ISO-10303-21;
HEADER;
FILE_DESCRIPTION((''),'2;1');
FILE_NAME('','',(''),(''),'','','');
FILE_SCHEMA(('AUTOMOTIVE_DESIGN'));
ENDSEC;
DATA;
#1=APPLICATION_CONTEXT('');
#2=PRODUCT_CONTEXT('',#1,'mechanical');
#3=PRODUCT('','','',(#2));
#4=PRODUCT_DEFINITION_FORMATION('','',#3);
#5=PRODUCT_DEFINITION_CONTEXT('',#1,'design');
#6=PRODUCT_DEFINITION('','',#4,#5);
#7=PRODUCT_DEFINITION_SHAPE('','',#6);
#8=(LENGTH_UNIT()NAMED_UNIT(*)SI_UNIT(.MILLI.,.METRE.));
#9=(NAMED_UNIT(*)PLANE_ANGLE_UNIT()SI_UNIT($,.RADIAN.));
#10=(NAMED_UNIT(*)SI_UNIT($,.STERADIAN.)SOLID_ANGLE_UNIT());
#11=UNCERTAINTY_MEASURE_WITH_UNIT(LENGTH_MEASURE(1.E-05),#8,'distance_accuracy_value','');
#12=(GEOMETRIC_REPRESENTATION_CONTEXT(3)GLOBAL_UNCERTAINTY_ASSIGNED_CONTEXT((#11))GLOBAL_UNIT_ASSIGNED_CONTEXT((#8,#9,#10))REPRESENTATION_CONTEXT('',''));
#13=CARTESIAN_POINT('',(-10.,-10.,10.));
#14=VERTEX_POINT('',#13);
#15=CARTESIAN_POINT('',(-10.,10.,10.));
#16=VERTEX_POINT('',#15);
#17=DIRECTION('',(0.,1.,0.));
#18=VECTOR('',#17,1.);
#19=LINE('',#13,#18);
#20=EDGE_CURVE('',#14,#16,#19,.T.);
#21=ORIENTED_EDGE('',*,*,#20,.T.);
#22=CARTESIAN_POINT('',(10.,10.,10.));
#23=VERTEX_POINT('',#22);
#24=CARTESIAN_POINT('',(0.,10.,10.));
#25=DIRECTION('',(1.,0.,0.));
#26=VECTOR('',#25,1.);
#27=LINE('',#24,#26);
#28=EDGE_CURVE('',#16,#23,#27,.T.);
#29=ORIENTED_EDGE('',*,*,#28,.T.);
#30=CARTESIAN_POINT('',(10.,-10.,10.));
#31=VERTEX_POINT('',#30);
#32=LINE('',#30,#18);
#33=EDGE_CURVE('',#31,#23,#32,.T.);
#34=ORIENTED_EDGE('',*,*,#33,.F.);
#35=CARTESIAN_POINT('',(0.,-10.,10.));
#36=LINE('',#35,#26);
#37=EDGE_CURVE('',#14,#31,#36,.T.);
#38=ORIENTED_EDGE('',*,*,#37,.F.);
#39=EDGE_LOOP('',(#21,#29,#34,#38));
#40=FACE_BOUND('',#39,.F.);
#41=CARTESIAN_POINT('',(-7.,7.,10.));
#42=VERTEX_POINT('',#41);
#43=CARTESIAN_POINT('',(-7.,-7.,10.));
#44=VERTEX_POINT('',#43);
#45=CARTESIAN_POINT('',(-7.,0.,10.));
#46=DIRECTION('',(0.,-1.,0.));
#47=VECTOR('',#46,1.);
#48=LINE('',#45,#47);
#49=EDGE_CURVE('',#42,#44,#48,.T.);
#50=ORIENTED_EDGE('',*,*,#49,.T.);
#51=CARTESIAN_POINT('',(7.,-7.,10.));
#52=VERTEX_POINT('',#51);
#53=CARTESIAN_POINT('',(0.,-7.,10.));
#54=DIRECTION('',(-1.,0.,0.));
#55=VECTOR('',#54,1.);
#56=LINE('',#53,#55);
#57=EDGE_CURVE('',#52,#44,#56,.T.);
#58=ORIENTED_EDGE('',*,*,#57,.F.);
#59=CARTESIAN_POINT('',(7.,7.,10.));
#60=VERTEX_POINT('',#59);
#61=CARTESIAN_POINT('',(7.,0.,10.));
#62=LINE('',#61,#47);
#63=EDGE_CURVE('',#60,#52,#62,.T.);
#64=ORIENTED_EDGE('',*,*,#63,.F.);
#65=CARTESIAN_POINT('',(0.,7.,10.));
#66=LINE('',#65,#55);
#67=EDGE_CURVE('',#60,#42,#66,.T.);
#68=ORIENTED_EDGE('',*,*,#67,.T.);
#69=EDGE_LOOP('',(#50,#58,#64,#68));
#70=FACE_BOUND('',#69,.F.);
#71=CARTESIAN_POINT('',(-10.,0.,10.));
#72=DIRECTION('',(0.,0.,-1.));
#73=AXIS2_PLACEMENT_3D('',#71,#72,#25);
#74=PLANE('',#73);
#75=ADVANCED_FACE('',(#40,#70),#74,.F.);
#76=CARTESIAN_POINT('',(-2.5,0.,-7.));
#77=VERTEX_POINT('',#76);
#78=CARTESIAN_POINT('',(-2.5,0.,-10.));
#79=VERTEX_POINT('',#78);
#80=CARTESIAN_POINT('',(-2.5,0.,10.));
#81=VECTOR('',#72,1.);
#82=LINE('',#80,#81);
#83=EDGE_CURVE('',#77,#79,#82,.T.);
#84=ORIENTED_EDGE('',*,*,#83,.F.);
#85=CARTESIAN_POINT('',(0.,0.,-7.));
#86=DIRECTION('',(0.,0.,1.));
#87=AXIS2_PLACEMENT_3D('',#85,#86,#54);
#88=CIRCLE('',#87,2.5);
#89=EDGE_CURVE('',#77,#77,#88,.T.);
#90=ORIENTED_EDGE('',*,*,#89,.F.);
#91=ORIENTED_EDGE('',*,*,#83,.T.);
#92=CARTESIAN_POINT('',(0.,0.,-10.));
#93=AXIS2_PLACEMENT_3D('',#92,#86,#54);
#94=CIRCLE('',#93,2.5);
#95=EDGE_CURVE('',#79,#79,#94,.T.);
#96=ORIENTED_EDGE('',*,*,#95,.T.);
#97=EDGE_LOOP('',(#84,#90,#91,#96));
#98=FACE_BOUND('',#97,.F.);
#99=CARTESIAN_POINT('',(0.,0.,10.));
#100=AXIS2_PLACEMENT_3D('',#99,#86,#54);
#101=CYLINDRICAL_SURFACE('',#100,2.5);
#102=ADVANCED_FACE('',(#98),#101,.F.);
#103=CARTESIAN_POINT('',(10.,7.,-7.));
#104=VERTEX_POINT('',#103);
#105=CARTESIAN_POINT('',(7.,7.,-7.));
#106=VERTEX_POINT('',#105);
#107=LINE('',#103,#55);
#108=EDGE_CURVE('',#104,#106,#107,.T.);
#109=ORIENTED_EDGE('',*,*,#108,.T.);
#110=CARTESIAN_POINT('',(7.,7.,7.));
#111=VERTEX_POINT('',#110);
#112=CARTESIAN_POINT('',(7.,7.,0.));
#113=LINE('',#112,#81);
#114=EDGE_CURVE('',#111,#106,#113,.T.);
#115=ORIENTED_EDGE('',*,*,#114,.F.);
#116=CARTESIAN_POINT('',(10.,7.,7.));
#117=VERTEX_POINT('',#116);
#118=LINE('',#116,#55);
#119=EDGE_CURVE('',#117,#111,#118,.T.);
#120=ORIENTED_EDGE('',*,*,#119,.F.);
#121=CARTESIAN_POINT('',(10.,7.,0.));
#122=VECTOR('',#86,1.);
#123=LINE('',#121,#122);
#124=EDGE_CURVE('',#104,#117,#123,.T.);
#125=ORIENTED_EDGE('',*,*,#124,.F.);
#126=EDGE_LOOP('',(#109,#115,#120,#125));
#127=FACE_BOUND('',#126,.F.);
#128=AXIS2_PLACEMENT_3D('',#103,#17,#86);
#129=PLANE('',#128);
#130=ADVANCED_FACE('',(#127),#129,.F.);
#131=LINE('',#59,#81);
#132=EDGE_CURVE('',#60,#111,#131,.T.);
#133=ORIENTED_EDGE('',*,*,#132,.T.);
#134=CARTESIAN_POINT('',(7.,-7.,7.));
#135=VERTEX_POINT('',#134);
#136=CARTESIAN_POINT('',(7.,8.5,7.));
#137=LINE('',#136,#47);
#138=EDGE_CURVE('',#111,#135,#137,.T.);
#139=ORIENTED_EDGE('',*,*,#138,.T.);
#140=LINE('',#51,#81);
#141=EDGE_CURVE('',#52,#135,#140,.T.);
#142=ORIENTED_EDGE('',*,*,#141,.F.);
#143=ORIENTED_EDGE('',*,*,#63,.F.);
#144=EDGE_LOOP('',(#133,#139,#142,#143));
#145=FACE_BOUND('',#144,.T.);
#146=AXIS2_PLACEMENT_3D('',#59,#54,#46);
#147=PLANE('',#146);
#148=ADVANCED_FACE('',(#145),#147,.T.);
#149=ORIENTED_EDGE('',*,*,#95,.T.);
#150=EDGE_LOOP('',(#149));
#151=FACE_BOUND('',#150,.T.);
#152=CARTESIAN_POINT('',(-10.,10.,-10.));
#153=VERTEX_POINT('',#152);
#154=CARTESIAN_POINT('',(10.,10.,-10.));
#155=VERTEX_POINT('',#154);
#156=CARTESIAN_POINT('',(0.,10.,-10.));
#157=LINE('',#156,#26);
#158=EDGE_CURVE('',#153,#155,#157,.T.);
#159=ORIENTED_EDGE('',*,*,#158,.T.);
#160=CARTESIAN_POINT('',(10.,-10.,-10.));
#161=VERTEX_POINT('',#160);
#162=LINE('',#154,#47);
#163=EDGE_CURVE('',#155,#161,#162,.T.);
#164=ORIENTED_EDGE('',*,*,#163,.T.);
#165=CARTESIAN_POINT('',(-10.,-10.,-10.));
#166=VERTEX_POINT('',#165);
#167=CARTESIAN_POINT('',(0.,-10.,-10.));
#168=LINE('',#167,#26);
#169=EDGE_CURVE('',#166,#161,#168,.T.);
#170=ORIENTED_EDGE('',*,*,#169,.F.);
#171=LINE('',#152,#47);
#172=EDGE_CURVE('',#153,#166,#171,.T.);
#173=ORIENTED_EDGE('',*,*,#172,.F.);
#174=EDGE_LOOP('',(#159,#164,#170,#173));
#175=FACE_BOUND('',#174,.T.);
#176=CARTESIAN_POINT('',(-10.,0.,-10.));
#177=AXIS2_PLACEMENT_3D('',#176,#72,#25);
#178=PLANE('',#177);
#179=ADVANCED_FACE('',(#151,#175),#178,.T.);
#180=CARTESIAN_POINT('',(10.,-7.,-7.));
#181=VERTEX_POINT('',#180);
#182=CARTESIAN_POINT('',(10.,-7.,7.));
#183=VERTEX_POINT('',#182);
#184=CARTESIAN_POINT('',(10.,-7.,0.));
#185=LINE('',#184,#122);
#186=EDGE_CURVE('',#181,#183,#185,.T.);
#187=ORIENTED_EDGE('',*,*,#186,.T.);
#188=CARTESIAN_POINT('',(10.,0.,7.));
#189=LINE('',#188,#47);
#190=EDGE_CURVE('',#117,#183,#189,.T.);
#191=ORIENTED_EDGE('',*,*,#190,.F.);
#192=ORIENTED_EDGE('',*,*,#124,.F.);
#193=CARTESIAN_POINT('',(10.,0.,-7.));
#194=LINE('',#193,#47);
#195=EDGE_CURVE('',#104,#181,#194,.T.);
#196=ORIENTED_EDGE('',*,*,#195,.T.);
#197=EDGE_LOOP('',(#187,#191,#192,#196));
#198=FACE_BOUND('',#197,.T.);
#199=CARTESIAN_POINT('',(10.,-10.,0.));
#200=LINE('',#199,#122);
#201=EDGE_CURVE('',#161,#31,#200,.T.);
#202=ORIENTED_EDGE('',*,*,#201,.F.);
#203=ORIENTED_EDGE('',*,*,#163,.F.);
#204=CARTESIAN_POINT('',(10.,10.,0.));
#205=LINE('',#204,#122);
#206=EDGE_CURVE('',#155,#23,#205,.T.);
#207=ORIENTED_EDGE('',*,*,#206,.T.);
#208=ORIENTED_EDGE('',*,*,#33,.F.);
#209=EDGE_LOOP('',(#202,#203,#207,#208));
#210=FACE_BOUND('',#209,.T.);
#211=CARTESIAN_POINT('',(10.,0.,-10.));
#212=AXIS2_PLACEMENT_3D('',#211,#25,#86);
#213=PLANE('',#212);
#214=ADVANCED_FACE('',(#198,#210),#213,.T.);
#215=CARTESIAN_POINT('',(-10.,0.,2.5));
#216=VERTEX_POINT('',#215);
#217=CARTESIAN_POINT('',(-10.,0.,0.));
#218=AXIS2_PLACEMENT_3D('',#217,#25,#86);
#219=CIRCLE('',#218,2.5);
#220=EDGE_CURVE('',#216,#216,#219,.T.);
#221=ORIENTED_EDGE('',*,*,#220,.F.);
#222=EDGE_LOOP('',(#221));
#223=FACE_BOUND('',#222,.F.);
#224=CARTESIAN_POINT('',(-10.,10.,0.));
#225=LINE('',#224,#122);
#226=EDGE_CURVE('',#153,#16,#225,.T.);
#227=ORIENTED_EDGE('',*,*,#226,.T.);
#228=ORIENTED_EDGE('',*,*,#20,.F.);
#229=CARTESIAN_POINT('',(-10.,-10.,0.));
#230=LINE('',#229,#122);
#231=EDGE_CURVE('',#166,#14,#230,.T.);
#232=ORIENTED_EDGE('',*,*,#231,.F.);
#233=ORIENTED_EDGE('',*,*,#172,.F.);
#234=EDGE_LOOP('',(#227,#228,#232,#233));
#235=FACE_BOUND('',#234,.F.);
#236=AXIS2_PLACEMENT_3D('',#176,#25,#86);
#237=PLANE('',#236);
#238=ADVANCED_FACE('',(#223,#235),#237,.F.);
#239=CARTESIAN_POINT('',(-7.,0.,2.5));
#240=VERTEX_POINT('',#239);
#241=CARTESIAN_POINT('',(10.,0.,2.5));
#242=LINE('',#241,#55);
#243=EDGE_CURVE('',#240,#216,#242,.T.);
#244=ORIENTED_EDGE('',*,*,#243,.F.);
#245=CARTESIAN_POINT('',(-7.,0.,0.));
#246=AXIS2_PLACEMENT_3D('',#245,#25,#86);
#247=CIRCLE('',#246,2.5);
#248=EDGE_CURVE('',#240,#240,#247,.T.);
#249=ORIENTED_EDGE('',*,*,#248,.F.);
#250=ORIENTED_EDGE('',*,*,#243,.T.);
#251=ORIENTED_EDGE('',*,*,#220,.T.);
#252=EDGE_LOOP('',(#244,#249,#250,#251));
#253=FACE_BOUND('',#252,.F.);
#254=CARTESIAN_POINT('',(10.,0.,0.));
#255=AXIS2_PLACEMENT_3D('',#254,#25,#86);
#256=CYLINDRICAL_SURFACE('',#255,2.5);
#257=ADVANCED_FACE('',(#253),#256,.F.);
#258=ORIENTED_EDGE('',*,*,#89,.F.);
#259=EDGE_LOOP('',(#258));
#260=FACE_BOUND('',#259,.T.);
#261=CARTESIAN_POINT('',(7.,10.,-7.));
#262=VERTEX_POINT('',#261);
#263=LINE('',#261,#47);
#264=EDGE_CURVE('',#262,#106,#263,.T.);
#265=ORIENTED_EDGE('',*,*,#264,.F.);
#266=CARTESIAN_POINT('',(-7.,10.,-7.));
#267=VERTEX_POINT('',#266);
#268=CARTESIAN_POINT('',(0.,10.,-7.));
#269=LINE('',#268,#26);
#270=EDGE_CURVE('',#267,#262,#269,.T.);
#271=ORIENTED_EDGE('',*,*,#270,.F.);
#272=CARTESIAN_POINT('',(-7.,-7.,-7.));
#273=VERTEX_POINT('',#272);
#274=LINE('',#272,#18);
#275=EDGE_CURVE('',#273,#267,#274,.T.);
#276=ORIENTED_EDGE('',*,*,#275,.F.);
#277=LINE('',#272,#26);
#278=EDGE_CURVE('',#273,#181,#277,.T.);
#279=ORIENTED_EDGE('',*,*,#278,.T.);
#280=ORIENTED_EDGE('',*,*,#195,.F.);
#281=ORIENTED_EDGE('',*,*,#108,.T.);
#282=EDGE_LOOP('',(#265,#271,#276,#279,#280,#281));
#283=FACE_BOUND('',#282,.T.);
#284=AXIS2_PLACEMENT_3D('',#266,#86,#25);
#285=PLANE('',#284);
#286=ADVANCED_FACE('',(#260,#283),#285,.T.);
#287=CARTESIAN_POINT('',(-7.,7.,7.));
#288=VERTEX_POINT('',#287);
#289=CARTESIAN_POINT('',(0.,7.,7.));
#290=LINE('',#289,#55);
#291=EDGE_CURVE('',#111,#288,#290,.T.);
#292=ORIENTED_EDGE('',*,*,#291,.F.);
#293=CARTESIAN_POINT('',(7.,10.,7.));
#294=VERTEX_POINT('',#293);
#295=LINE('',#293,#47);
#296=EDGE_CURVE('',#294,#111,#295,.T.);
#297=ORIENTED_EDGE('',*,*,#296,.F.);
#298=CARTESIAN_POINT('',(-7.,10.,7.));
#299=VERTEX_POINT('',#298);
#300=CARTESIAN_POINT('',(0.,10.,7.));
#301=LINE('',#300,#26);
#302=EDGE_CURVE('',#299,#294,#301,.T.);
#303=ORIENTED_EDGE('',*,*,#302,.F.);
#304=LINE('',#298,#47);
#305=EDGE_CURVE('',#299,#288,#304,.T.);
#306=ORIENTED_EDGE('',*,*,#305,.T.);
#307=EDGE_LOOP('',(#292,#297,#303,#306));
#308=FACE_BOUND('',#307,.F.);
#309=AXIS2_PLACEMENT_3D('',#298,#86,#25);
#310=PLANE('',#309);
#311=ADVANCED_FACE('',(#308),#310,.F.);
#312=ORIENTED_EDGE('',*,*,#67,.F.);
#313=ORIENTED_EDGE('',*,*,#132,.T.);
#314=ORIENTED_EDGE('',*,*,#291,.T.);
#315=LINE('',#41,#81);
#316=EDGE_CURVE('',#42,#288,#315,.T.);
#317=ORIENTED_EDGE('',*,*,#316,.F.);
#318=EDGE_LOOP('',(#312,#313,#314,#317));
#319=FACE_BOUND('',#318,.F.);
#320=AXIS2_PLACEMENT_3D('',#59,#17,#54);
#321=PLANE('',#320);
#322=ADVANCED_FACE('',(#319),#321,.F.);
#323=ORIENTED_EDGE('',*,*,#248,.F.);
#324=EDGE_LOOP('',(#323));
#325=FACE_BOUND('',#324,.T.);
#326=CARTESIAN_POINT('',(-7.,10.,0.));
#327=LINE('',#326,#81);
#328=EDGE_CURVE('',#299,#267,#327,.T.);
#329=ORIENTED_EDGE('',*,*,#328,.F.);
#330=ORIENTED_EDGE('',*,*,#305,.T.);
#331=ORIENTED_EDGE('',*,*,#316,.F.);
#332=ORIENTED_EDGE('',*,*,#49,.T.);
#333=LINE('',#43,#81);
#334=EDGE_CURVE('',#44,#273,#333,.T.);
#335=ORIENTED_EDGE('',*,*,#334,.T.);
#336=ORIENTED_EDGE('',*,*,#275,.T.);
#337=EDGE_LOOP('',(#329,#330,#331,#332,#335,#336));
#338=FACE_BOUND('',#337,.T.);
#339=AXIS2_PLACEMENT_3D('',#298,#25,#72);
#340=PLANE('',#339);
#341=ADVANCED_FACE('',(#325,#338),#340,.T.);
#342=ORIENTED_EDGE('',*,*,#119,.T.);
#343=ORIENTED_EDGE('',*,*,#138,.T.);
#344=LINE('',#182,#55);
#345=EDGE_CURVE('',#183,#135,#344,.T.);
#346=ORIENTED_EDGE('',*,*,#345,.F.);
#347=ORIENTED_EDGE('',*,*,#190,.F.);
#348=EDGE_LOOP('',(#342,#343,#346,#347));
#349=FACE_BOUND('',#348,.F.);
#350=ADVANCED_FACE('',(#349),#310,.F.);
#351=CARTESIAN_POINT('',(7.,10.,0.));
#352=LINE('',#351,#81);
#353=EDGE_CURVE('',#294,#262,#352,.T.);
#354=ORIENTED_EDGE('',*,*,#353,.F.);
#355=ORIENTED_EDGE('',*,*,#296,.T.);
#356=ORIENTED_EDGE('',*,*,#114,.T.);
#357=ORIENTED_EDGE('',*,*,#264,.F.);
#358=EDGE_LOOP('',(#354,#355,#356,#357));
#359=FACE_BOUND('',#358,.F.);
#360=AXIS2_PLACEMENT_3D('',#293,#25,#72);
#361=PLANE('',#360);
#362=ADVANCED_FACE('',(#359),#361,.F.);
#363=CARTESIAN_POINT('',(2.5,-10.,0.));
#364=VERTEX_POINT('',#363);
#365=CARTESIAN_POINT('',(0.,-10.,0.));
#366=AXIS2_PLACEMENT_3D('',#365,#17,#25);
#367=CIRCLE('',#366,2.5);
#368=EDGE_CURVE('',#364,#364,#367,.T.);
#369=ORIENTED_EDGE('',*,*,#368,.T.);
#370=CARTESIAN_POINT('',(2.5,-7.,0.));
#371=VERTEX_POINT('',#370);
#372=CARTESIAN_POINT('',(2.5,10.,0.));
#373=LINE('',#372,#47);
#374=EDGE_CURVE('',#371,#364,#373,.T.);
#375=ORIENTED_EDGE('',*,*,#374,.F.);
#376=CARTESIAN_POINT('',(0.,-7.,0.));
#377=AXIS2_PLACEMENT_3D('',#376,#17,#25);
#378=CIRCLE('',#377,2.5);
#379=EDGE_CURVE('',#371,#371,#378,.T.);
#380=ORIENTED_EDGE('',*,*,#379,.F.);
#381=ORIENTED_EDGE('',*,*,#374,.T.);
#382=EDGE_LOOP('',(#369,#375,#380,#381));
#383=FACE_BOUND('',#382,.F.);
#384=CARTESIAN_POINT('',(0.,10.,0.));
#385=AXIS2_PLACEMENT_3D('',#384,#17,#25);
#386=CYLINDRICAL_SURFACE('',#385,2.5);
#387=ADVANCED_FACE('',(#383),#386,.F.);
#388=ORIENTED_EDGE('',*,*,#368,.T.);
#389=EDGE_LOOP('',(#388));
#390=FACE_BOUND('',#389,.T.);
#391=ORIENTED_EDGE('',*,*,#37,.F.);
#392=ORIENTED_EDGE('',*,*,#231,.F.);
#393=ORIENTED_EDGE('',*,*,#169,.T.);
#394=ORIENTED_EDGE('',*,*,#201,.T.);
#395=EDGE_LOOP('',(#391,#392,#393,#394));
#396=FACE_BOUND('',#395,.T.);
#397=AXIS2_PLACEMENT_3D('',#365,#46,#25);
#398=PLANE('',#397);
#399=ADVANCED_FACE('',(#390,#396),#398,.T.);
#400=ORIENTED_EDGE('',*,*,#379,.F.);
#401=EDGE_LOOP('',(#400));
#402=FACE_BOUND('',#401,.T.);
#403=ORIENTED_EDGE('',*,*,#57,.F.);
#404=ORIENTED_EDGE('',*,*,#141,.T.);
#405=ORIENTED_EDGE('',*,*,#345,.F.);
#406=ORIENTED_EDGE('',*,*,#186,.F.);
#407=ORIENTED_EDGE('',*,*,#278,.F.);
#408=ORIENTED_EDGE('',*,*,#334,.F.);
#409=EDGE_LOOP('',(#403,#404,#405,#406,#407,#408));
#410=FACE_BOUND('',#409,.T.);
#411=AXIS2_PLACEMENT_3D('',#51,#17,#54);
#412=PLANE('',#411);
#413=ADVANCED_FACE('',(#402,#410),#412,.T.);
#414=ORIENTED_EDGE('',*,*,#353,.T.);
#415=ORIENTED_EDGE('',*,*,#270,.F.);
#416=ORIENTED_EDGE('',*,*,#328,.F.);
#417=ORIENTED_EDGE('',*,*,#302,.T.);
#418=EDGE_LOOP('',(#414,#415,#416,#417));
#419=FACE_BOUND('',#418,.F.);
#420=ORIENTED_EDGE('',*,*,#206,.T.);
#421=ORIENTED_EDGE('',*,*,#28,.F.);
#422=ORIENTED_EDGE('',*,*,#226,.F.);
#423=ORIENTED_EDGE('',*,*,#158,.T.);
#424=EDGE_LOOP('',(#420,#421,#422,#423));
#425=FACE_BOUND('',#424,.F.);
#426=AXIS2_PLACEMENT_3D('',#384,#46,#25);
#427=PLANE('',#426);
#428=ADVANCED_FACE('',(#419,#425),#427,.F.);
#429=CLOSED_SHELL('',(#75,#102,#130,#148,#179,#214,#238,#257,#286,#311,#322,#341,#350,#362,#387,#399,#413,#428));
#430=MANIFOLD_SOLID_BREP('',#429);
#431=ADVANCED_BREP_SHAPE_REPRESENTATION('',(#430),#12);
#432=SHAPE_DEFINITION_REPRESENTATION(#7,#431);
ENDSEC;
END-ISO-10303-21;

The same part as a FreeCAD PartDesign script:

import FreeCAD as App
import Part
import Sketcher

V = App.Vector


def add_polygon(sketch, points):
    """Adds a closed chain of lines whose ends are joined by coincident constraints."""
    first, n = sketch.GeometryCount, len(points)
    for a, b in zip(points, points[1:] + points[:1]):
        sketch.addGeometry(Part.LineSegment(App.Vector(*a, 0), App.Vector(*b, 0)), False)
    for i in range(n):
        sketch.addConstraint(Sketcher.Constraint("Coincident", first + i, 2, first + (i + 1) % n, 1))

doc = App.newDocument("Part")
body = doc.addObject("PartDesign::Body", "Body")

# Sketch on XZ plane
sketch1 = doc.addObject("Sketcher::SketchObject", "Sketch")
body.addObject(sketch1)
sketch1.AttachmentSupport = (doc.XZ_Plane, [""])
sketch1.MapMode = "FlatFace"
add_polygon(sketch1, [(-10, 10), (-10, -10), (10, -10), (10, 10)])  # lines 0-3
sketch1.addConstraint([
    Sketcher.Constraint("Vertical", 0),
    Sketcher.Constraint("Horizontal", 1),
    Sketcher.Constraint("Vertical", 2),
    Sketcher.Constraint("Horizontal", 3),
    Sketcher.Constraint("Symmetric", 0, 2, 2, 2, -1, 1),
    Sketcher.Constraint("Equal", 3, 0),
    Sketcher.Constraint("DistanceX", 1, 1, 1, 2, 20.0),
])
pad1 = doc.addObject("PartDesign::Pad", "Pad")
body.addObject(pad1)
pad1.Profile = sketch1
pad1.Length = 20
pad1.Midplane = True

# Sketch on XY plane
sketch2 = doc.addObject("Sketcher::SketchObject", "Sketch001")
body.addObject(sketch2)
sketch2.AttachmentSupport = (doc.XY_Plane, [""])
sketch2.MapMode = "FlatFace"
sketch2.AttachmentOffset = App.Placement(V(0, 0, 10), App.Rotation())
sketch2.addGeometry(Part.Circle(V(0, 0, 0), V(0, 0, 1), 2.5), False)
sketch2.addConstraint([
    Sketcher.Constraint("Coincident", 0, 3, -1, 1),
    Sketcher.Constraint("Diameter", 0, 5.0),
])
pocket1 = doc.addObject("PartDesign::Pocket", "Pocket")
body.addObject(pocket1)
pocket1.Profile = sketch2
pocket1.Length = 25

# Sketch on YZ plane
sketch3 = doc.addObject("Sketcher::SketchObject", "Sketch002")
body.addObject(sketch3)
sketch3.AttachmentSupport = (doc.YZ_Plane, [""])
sketch3.MapMode = "FlatFace"
sketch3.AttachmentOffset = App.Placement(V(0, 0, 10), App.Rotation())
sketch3.addGeometry(Part.Circle(V(0, 0, 0), V(0, 0, 1), 2.5), False)
sketch3.addConstraint([
    Sketcher.Constraint("Coincident", 0, 3, -1, 1),
    Sketcher.Constraint("Diameter", 0, 5.0),
])
pocket2 = doc.addObject("PartDesign::Pocket", "Pocket001")
body.addObject(pocket2)
pocket2.Profile = sketch3
pocket2.Length = 25

# Sketch on XZ plane
sketch4 = doc.addObject("Sketcher::SketchObject", "Sketch003")
body.addObject(sketch4)
sketch4.AttachmentSupport = (doc.XZ_Plane, [""])
sketch4.MapMode = "FlatFace"
sketch4.AttachmentOffset = App.Placement(V(0, 0, -10), App.Rotation())
sketch4.addGeometry(Part.Circle(V(0, 0, 0), V(0, 0, 1), 2.5), False)
sketch4.addConstraint([
    Sketcher.Constraint("Coincident", 0, 3, -1, 1),
    Sketcher.Constraint("Diameter", 0, 5.0),
])
pocket3 = doc.addObject("PartDesign::Pocket", "Pocket002")
body.addObject(pocket3)
pocket3.Profile = sketch4
pocket3.Length = 25
pocket3.Reversed = True

# Sketch on YZ plane
sketch5 = doc.addObject("Sketcher::SketchObject", "Sketch004")
body.addObject(sketch5)
sketch5.AttachmentSupport = (doc.YZ_Plane, [""])
sketch5.MapMode = "FlatFace"
sketch5.AttachmentOffset = App.Placement(V(0, 0, 10), App.Rotation())
add_polygon(sketch5, [(-7, -7), (7, -7), (7, 7), (-7, 7)])  # lines 0-3
sketch5.addConstraint([
    Sketcher.Constraint("Horizontal", 0),
    Sketcher.Constraint("Vertical", 1),
    Sketcher.Constraint("Horizontal", 2),
    Sketcher.Constraint("Vertical", 3),
    Sketcher.Constraint("Symmetric", 0, 2, 2, 2, -1, 1),
    Sketcher.Constraint("Equal", 2, 1),
    Sketcher.Constraint("DistanceX", 0, 1, 0, 2, 14.0),
])
pocket4 = doc.addObject("PartDesign::Pocket", "Pocket003")
body.addObject(pocket4)
pocket4.Profile = sketch5
pocket4.Length = 17

# Sketch on XZ plane
sketch6 = doc.addObject("Sketcher::SketchObject", "Sketch005")
body.addObject(sketch6)
sketch6.AttachmentSupport = (doc.XZ_Plane, [""])
sketch6.MapMode = "FlatFace"
sketch6.AttachmentOffset = App.Placement(V(0, 0, -10), App.Rotation())
add_polygon(sketch6, [(-7, -7), (-7, 7), (7, 7), (7, -7)])  # lines 0-3
sketch6.addConstraint([
    Sketcher.Constraint("Vertical", 0),
    Sketcher.Constraint("Horizontal", 1),
    Sketcher.Constraint("Vertical", 2),
    Sketcher.Constraint("Horizontal", 3),
    Sketcher.Constraint("Symmetric", 0, 2, 2, 2, -1, 1),
    Sketcher.Constraint("Equal", 3, 0),
    Sketcher.Constraint("DistanceX", 1, 1, 1, 2, 14.0),
])
pocket5 = doc.addObject("PartDesign::Pocket", "Pocket004")
body.addObject(pocket5)
pocket5.Profile = sketch6
pocket5.Length = 17
pocket5.Reversed = True

# Sketch on XY plane
sketch7 = doc.addObject("Sketcher::SketchObject", "Sketch006")
body.addObject(sketch7)
sketch7.AttachmentSupport = (doc.XY_Plane, [""])
sketch7.MapMode = "FlatFace"
sketch7.AttachmentOffset = App.Placement(V(0, 0, 10), App.Rotation())
add_polygon(sketch7, [(7, -7), (7, 7), (-7, 7), (-7, -7)])  # lines 0-3
sketch7.addConstraint([
    Sketcher.Constraint("Vertical", 0),
    Sketcher.Constraint("Horizontal", 1),
    Sketcher.Constraint("Vertical", 2),
    Sketcher.Constraint("Horizontal", 3),
    Sketcher.Constraint("Symmetric", 0, 2, 2, 2, -1, 1),
    Sketcher.Constraint("Equal", 3, 0),
    Sketcher.Constraint("DistanceX", 1, 2, 1, 1, 14.0),
])
pocket6 = doc.addObject("PartDesign::Pocket", "Pocket005")
body.addObject(pocket6)
pocket6.Profile = sketch7
pocket6.Length = 17

doc.recompute()
